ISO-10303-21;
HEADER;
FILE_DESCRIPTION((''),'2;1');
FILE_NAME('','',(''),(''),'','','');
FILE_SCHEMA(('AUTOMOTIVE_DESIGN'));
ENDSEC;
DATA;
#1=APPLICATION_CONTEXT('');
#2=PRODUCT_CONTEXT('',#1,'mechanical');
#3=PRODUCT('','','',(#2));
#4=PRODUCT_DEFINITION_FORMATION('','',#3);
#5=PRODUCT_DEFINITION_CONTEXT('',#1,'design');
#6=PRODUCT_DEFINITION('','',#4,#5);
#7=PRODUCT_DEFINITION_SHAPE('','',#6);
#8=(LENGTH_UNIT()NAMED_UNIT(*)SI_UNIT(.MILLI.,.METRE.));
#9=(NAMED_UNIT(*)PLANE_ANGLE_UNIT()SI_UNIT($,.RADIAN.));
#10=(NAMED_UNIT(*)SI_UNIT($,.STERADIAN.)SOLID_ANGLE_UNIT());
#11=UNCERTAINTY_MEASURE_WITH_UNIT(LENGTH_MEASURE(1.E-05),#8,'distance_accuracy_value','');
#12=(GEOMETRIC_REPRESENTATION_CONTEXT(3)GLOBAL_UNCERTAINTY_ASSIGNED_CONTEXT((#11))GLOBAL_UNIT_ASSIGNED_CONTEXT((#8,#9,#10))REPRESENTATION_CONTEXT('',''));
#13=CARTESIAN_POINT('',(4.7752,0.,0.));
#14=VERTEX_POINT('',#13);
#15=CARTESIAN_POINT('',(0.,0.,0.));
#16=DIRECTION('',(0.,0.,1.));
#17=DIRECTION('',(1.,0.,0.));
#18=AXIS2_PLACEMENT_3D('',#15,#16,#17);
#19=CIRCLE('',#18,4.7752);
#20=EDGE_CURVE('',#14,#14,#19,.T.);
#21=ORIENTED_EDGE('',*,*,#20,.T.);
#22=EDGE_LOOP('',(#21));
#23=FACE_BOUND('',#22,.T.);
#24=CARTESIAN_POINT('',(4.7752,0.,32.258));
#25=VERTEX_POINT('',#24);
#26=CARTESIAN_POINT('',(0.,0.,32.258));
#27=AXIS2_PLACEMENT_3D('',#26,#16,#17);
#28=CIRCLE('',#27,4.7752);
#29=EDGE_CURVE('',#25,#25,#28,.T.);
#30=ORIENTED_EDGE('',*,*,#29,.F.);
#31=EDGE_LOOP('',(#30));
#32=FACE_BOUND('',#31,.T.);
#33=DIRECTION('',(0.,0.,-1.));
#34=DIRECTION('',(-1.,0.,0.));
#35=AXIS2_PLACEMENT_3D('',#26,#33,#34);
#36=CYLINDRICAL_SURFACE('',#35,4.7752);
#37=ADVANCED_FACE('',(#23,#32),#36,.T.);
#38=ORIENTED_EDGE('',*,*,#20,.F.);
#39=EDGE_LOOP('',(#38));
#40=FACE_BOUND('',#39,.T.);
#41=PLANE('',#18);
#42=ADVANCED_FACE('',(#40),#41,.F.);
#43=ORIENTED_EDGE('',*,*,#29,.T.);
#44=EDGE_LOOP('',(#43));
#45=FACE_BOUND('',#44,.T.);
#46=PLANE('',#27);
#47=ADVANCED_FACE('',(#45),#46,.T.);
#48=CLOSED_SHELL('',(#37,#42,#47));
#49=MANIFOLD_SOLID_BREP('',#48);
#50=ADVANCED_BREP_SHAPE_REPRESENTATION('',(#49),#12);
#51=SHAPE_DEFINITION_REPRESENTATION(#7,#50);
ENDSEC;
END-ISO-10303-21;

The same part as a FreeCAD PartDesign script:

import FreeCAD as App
import Part
import Sketcher

V = App.Vector
Q = App.Units.Quantity

doc = App.newDocument("Part")
body = doc.addObject("PartDesign::Body", "Body")

sketch1 = body.newObject("Sketcher::SketchObject", "Sketch")
sketch1.AttachmentSupport = (doc.getObject("XY_Plane"), [""])
sketch1.MapMode = "FlatFace"
sketch1.addGeometry(Part.Circle(V(0, 0, 0), V(0, 0, 1), 4.8), False)
sketch1.addConstraint([
    Sketcher.Constraint("Coincident", 0, 3, -1, 1),
    Sketcher.Constraint("Diameter", 0, Q("0.376 in")),
])
pad1 = body.newObject("PartDesign::Pad", "Pad")
pad1.Profile = sketch1
pad1.Length = Q("1.27 in")

doc.recompute()
